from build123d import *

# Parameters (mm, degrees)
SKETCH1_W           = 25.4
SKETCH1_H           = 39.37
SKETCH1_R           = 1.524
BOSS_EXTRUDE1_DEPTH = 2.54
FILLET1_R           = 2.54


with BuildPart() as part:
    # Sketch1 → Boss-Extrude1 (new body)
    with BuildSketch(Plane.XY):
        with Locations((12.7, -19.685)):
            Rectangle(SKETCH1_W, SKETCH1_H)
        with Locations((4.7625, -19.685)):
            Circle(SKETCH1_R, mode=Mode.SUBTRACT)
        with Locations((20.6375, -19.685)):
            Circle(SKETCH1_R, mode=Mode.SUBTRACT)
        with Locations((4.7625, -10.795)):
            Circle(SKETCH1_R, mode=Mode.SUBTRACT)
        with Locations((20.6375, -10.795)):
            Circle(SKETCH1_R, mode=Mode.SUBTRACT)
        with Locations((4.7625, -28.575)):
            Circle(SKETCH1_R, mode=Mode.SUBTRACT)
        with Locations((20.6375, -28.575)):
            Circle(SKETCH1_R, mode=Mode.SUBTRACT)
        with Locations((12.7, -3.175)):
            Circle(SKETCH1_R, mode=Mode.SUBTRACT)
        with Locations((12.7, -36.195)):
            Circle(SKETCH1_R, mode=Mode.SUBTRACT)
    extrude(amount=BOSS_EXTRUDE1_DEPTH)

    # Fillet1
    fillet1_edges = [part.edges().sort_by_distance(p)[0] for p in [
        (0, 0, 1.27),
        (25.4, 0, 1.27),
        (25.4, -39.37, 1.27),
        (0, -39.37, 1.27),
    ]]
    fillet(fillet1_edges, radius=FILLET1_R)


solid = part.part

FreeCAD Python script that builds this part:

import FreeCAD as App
import Part
import Sketcher
Q = App.Units.Quantity


def edges_at(feature, points):
    """Names of the edges that pass closest to the given points."""
    edges = feature.Shape.Edges
    near = lambda p: min(range(len(edges)), key=lambda i: edges[i].distToShape(Part.Vertex(*p))[0])
    return sorted({f"Edge{near(p) + 1}" for p in points})


def add_polygon(sketch, points):
    """Adds a closed chain of lines whose ends are joined by coincident constraints."""
    first, n = sketch.GeometryCount, len(points)
    for a, b in zip(points, points[1:] + points[:1]):
        sketch.addGeometry(Part.LineSegment(App.Vector(*a, 0), App.Vector(*b, 0)), False)
    for i in range(n):
        sketch.addConstraint(Sketcher.Constraint("Coincident", first + i, 2, first + (i + 1) % n, 1))

doc = App.newDocument("Part")
params = doc.addObject("Spreadsheet::Sheet", "Params")
for row, (alias, value) in enumerate([
    ("sketch1_diameter", "0.12 in"),
    ("sketch1_width", "1 in"),
    ("sketch1_height", "1.55 in"),
    ("pad1_length", "0.1 in"),
    ("fillet_radius", "0.1 in"),
], start=1):
    params.set(f"A{row}", alias)
    params.set(f"B{row}", "=" + value)
    params.setAlias(f"B{row}", alias)

body = doc.addObject("PartDesign::Body", "Body")

# Sketch on XY plane
sketch1 = body.newObject("Sketcher::SketchObject", "Sketch")
sketch1.AttachmentSupport = (doc.getObject("XY_Plane"), [""])
sketch1.MapMode = "FlatFace"
add_polygon(sketch1, [(0, 0), (0, -39.4), (25.4, -39.4), (25.4, 0)])  # lines 0-3
sketch1.addGeometry(Part.Circle(App.Vector(12.7, -36.2, 0), App.Vector(0, 0, 1), 1.5), False)  # 4
sketch1.addGeometry(Part.Circle(App.Vector(4.8, -28.6, 0), App.Vector(0, 0, 1), 1.5), False)  # 5
sketch1.addGeometry(Part.Circle(App.Vector(20.6, -28.6, 0), App.Vector(0, 0, 1), 1.5), False)  # 6
sketch1.addGeometry(Part.Circle(App.Vector(4.8, -19.7, 0), App.Vector(0, 0, 1), 1.5), False)  # 7
sketch1.addGeometry(Part.Circle(App.Vector(4.8, -10.8, 0), App.Vector(0, 0, 1), 1.5), False)  # 8
sketch1.addGeometry(Part.Circle(App.Vector(12.7, -3.2, 0), App.Vector(0, 0, 1), 1.5), False)  # 9
sketch1.addGeometry(Part.Circle(App.Vector(20.6, -19.7, 0), App.Vector(0, 0, 1), 1.5), False)  # 10
sketch1.addGeometry(Part.Circle(App.Vector(20.6, -10.8, 0), App.Vector(0, 0, 1), 1.5), False)  # 11
sketch1.addConstraint(Sketcher.Constraint("Vertical", 0))
sketch1.addConstraint(Sketcher.Constraint("Horizontal", 1))
sketch1.addConstraint(Sketcher.Constraint("Vertical", 2))
sketch1.addConstraint(Sketcher.Constraint("Horizontal", 3))
sketch1.addConstraint(Sketcher.Constraint("Coincident", 3, 2, -1, 1))
sketch1.addConstraint(Sketcher.Constraint("Equal", 4, 5))
sketch1.addConstraint(Sketcher.Constraint("Equal", 5, 6))
sketch1.addConstraint(Sketcher.Constraint("Equal", 6, 7))
sketch1.addConstraint(Sketcher.Constraint("Equal", 7, 8))
sketch1.addConstraint(Sketcher.Constraint("Equal", 8, 9))
sketch1.addConstraint(Sketcher.Constraint("Equal", 9, 10))
sketch1.addConstraint(Sketcher.Constraint("Equal", 10, 11))
sketch1.addConstraint(Sketcher.Constraint("Horizontal", 5, 3, 6, 3))
sketch1.addConstraint(Sketcher.Constraint("Horizontal", 7, 3, 10, 3))
sketch1.addConstraint(Sketcher.Constraint("Horizontal", 8, 3, 11, 3))
sketch1.addConstraint(Sketcher.Constraint("Vertical", 5, 3, 7, 3))
sketch1.addConstraint(Sketcher.Constraint("Vertical", 7, 3, 8, 3))
sketch1.addConstraint(Sketcher.Constraint("Vertical", 4, 3, 9, 3))
sketch1.addConstraint(Sketcher.Constraint("Vertical", 6, 3, 10, 3))
sketch1.addConstraint(Sketcher.Constraint("Vertical", 10, 3, 11, 3))
sketch1.addConstraint(Sketcher.Constraint("Diameter", 4, Q("0.12 in")))
sketch1.addConstraint(Sketcher.Constraint("DistanceX", 1, 1, 1, 2, Q("1 in")))
sketch1.addConstraint(Sketcher.Constraint("DistanceY", 4, 3, 8, 3, Q("1 in")))
sketch1.addConstraint(Sketcher.Constraint("DistanceY", 5, 3, 9, 3, Q("1 in")))
sketch1.addConstraint(Sketcher.Constraint("DistanceY", 0, 2, 0, 1, Q("1.55 in")))
sketch1.addConstraint(Sketcher.Constraint("DistanceX", -1, 1, 4, 3, Q("0.5 in")))
sketch1.addConstraint(Sketcher.Constraint("DistanceY", 4, 3, 5, 3, Q("0.3 in")))
sketch1.addConstraint(Sketcher.Constraint("DistanceY", 5, 3, 7, 3, Q("0.35 in")))
sketch1.addConstraint(Sketcher.Constraint("DistanceY", 4, 3, -1, 1, Q("1.425 in")))
sketch1.addConstraint(Sketcher.Constraint("DistanceX", -1, 1, 5, 3, Q("0.1875 in")))
sketch1.addConstraint(Sketcher.Constraint("DistanceX", -1, 1, 6, 3, Q("0.8125 in")))
sketch1.setExpression("Constraints[24]", "Params.sketch1_diameter")
sketch1.setExpression("Constraints[25]", "Params.sketch1_width")
sketch1.setExpression("Constraints[28]", "Params.sketch1_height")
pad1 = body.newObject("PartDesign::Pad", "Pad")
pad1.Profile = sketch1
pad1.setExpression("Length", "Params.pad1_length")
doc.recompute()

fillet = body.newObject("PartDesign::Fillet", "Fillet")
fillet.Base = (pad1, edges_at(pad1, [
    (0, 0, 1.27),
    (25.4, 0, 1.27),
    (25.4, -39.37, 1.27),
    (0, -39.37, 1.27),
]))
fillet.setExpression("Radius", "Params.fillet_radius")

doc.recompute()
